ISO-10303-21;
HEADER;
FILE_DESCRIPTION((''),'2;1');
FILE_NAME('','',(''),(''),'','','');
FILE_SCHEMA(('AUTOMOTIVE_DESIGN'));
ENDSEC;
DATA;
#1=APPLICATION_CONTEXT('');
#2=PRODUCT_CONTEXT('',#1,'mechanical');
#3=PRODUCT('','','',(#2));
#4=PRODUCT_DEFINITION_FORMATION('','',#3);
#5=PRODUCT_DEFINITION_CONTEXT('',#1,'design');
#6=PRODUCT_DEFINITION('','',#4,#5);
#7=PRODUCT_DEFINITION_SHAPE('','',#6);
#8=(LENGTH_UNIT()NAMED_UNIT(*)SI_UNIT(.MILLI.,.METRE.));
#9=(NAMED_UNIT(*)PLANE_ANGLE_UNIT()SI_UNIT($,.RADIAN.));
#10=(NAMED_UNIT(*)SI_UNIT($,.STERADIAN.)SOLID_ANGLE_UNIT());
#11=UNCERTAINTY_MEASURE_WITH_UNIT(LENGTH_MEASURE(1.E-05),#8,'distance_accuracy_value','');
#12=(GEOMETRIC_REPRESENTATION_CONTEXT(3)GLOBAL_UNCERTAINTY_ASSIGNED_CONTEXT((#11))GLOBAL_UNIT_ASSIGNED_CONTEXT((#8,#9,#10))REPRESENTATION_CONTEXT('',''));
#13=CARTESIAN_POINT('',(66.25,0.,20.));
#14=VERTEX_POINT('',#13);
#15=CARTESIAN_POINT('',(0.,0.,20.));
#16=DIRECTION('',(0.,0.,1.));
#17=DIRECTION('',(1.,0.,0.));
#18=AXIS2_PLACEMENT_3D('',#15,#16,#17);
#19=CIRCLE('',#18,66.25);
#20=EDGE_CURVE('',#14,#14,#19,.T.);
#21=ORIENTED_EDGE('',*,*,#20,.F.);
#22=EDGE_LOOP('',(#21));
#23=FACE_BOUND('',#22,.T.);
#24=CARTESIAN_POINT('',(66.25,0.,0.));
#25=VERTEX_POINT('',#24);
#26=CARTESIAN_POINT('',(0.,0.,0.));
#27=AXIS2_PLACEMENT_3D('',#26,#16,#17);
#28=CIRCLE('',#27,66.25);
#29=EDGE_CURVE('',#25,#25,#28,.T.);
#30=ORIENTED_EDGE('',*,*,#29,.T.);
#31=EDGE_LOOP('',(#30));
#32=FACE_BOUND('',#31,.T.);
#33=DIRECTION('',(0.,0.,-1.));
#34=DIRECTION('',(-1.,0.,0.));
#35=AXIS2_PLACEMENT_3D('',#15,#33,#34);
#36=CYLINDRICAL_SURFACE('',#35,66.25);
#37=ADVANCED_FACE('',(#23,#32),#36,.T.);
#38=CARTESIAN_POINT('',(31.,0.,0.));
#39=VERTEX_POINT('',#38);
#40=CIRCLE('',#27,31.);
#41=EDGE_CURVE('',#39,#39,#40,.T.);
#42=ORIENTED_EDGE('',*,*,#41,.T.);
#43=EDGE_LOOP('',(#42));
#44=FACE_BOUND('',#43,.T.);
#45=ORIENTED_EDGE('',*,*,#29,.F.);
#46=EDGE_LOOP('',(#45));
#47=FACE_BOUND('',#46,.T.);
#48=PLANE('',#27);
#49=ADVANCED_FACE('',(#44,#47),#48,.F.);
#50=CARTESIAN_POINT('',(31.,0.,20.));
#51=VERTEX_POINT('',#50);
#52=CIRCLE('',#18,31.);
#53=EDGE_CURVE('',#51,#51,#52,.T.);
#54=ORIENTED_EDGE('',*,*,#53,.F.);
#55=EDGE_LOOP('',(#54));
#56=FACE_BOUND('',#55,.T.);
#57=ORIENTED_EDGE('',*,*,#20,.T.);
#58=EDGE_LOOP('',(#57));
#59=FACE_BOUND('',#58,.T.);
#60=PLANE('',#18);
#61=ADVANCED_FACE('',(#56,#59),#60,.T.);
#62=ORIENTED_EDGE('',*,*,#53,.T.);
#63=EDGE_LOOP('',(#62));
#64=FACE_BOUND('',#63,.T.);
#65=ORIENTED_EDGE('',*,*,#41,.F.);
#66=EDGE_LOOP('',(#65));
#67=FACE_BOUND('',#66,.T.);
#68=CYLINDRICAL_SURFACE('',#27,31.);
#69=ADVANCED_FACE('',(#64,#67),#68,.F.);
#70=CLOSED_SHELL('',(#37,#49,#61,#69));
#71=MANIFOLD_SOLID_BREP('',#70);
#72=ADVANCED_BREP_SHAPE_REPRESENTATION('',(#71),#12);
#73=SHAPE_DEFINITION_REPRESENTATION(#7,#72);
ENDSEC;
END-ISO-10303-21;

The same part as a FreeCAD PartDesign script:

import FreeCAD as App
import Part
import Sketcher

V = App.Vector
Q = App.Units.Quantity

doc = App.newDocument("Part")
body = doc.addObject("PartDesign::Body", "Body")

sketch1 = body.newObject("Sketcher::SketchObject", "Sketch")
sketch1.AttachmentSupport = (doc.getObject("XY_Plane"), [""])
sketch1.MapMode = "FlatFace"
sketch1.addGeometry([
    Part.Circle(V(0, 0, 0), V(0, 0, 1), 66),
    Part.Circle(V(0, 0, 0), V(0, 0, 1), 25),
], False)
sketch1.addConstraint([
    Sketcher.Constraint("Coincident", 0, 3, -1, 1),
    Sketcher.Constraint("Coincident", 1, 3, -1, 1),
    Sketcher.Constraint("Diameter", 1, Q("50 mm")),
    Sketcher.Constraint("Diameter", 0, Q("132.5 mm")),
])
pad1 = body.newObject("PartDesign::Pad", "Pad")
pad1.Profile = sketch1
pad1.Length = 20

sketch2 = body.newObject("Sketcher::SketchObject", "Sketch001")
sketch2.AttachmentSupport = (doc.getObject("XY_Plane"), [""])
sketch2.MapMode = "FlatFace"
sketch2.AttachmentOffset = App.Placement(V(0, 0, 20), App.Rotation())
sketch2.addGeometry(Part.Circle(V(0, 0, 0), V(0, 0, 1), 31), False)
sketch2.addConstraint([
    Sketcher.Constraint("Coincident", 0, 3, -1, 1),
    Sketcher.Constraint("Diameter", 0, Q("62 mm")),
])
pocket1 = body.newObject("PartDesign::Pocket", "Pocket")
pocket1.Profile = sketch2
pocket1.Type = "ThroughAll"

doc.recompute()
